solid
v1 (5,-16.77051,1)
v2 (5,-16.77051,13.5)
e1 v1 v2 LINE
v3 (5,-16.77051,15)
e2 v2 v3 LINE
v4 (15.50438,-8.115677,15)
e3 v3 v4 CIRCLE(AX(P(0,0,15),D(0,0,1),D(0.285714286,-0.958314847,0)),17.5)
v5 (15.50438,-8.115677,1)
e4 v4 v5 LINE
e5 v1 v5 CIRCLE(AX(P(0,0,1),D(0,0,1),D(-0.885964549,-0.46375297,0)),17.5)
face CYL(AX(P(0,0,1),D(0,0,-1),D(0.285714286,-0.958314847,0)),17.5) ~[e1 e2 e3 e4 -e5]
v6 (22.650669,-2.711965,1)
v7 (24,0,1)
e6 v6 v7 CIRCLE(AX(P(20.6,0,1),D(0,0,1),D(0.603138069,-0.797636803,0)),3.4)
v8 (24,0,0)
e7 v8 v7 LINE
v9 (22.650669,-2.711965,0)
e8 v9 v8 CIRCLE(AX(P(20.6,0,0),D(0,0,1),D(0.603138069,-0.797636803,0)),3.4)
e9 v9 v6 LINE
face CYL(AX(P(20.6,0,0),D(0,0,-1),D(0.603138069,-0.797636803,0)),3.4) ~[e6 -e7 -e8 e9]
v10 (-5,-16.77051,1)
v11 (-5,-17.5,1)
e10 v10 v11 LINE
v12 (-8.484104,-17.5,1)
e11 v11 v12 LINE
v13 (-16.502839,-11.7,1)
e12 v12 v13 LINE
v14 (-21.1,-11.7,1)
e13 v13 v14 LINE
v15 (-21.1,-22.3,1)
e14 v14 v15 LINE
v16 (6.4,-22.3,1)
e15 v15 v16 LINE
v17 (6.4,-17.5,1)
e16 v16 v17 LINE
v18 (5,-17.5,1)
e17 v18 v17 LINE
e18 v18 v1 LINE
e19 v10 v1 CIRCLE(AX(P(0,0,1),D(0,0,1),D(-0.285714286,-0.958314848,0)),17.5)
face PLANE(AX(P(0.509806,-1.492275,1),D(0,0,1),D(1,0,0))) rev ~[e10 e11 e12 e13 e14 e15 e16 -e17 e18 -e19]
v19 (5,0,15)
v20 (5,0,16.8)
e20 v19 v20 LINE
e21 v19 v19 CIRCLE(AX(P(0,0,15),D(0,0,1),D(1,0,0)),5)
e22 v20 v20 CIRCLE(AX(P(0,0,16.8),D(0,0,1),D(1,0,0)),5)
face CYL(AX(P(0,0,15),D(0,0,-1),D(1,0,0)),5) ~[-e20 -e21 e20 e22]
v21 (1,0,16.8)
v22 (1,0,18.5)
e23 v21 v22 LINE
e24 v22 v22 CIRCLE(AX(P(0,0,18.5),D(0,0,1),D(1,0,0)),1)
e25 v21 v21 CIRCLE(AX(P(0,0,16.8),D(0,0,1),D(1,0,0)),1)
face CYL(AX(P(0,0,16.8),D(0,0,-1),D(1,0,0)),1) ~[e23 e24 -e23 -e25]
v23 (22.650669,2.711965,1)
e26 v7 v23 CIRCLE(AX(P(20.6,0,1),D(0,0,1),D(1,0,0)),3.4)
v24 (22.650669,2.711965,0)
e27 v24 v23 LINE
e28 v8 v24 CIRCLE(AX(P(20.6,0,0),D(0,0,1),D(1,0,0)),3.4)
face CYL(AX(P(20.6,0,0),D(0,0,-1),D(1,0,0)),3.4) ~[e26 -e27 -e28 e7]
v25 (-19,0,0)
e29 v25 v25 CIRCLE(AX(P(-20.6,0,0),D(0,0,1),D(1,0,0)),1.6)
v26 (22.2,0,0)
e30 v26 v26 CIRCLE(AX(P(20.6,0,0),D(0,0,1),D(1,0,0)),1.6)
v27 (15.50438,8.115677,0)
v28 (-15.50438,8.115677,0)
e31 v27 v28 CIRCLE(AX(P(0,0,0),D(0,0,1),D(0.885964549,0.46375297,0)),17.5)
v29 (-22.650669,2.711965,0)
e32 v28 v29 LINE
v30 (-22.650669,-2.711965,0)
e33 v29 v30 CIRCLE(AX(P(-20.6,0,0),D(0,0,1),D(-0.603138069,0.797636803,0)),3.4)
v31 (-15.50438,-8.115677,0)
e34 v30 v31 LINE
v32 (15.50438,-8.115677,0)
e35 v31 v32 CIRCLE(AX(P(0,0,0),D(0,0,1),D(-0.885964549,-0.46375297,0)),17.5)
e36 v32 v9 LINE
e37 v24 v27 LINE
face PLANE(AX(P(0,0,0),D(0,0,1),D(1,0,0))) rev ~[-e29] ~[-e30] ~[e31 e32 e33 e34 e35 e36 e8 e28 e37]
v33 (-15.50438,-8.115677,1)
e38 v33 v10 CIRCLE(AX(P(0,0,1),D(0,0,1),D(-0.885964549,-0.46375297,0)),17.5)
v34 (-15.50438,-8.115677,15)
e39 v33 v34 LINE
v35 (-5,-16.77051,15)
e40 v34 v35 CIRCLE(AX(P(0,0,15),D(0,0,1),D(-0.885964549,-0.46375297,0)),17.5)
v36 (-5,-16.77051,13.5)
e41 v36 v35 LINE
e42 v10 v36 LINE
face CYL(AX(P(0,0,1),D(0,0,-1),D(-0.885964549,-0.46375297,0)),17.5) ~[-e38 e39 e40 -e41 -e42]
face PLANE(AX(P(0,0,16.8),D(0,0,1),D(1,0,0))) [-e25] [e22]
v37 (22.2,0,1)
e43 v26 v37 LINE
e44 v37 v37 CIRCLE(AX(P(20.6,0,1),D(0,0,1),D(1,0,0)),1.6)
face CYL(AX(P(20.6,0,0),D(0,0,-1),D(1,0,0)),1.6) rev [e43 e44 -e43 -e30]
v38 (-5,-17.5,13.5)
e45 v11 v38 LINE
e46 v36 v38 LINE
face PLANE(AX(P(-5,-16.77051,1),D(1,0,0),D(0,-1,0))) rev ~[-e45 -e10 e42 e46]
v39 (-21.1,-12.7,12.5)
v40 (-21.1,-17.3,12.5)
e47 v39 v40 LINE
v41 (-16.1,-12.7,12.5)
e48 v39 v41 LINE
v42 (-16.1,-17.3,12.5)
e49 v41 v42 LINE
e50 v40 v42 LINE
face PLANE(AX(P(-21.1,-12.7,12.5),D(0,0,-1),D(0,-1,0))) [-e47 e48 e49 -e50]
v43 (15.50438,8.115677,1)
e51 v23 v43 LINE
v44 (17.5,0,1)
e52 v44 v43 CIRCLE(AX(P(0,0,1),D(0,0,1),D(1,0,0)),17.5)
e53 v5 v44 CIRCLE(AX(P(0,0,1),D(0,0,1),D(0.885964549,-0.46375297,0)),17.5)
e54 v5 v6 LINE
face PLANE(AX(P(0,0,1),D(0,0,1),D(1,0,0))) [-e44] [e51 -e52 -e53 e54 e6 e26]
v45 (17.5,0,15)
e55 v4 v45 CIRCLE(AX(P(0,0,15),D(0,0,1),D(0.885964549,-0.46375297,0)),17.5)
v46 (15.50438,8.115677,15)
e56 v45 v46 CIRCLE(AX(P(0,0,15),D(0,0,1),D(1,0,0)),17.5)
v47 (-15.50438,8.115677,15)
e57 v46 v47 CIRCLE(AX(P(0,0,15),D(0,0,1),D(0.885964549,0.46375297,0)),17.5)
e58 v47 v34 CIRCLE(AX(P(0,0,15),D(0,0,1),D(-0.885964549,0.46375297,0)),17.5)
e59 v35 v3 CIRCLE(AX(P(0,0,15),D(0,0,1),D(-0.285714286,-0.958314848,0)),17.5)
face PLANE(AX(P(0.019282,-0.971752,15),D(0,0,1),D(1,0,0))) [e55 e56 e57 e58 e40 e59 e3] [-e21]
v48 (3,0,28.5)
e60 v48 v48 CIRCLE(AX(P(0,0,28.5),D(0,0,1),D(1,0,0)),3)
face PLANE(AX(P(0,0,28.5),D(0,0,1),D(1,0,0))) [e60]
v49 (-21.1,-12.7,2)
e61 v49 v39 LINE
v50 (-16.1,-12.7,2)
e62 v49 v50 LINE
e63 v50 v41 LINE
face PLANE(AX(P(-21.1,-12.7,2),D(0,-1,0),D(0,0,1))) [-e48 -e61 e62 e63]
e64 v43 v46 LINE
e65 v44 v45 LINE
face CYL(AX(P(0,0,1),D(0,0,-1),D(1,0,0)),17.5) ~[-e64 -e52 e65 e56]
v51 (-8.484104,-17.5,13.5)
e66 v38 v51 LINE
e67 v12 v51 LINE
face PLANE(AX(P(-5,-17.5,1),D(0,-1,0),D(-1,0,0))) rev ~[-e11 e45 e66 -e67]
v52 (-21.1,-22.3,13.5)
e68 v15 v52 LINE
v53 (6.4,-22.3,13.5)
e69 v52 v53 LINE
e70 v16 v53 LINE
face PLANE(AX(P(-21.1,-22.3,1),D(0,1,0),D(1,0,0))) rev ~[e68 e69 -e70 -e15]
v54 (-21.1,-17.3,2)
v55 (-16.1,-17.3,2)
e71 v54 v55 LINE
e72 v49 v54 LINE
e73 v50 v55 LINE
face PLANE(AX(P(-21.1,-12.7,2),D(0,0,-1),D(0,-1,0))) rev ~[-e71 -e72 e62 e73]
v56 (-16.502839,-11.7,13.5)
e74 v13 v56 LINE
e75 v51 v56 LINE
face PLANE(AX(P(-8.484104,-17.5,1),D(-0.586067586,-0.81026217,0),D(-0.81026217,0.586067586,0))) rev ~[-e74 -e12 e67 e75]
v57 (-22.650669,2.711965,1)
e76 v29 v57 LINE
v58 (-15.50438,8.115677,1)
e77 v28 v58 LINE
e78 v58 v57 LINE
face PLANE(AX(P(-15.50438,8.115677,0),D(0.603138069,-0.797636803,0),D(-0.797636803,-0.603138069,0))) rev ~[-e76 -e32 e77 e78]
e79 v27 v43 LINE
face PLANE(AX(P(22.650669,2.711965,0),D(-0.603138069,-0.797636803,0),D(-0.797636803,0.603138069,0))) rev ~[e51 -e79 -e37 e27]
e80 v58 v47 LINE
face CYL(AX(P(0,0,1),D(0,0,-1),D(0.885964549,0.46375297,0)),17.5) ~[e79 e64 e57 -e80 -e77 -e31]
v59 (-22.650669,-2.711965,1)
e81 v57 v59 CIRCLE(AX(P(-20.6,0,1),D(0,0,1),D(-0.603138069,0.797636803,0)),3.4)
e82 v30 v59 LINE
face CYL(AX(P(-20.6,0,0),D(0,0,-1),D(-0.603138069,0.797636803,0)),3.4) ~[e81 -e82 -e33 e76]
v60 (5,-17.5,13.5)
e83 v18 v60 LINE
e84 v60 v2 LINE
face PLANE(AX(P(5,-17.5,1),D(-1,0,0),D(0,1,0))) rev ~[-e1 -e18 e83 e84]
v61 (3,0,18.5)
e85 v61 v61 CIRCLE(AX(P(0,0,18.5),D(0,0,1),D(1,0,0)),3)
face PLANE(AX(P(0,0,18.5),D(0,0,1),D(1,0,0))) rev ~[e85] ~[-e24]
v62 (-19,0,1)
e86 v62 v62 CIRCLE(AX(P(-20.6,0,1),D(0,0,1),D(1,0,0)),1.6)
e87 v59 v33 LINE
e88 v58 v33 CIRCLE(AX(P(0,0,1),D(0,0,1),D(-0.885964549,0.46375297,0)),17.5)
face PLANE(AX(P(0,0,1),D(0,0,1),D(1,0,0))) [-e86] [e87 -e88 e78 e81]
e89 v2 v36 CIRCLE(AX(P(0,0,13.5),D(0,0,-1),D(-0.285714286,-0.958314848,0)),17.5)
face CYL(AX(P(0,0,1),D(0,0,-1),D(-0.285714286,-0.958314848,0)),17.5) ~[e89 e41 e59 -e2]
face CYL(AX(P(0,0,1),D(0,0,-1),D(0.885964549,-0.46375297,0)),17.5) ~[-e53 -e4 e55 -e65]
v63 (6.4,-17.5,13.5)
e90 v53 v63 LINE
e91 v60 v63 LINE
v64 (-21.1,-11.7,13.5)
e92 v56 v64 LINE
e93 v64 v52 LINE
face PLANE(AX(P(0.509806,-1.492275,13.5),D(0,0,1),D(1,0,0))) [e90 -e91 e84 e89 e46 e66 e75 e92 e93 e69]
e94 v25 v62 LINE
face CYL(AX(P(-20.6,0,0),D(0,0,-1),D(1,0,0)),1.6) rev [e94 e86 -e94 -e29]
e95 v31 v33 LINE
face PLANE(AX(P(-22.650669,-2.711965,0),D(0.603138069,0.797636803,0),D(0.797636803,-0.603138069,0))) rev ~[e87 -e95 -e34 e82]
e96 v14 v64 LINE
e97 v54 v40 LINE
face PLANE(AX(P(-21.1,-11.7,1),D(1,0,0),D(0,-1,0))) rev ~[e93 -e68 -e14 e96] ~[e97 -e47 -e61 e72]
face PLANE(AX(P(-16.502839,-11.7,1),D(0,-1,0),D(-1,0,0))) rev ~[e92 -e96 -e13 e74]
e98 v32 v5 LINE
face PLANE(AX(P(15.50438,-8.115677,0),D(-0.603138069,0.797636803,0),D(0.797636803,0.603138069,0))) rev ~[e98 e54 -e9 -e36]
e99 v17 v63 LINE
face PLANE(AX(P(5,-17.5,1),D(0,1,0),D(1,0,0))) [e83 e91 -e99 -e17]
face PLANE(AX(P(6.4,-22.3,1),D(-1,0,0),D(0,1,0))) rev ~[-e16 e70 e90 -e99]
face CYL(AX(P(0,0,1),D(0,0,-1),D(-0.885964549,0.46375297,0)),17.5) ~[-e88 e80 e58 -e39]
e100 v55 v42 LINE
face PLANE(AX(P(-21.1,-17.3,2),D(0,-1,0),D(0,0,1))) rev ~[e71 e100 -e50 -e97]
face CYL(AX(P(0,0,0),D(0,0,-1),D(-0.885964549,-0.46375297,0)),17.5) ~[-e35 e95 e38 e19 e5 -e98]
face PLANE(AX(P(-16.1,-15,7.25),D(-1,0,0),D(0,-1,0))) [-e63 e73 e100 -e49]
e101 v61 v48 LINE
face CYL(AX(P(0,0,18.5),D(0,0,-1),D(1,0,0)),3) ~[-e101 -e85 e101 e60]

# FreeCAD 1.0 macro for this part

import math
import FreeCAD as App
import Part
import Sketcher

V = App.Vector


def add_polygon(sketch, points):
    """Adds a closed chain of lines whose ends are joined by coincident constraints."""
    first, n = sketch.GeometryCount, len(points)
    for a, b in zip(points, points[1:] + points[:1]):
        sketch.addGeometry(Part.LineSegment(App.Vector(*a, 0), App.Vector(*b, 0)), False)
    for i in range(n):
        sketch.addConstraint(Sketcher.Constraint("Coincident", first + i, 2, first + (i + 1) % n, 1))

doc = App.newDocument("Part")
params = doc.addObject("Spreadsheet::Sheet", "Params")
for row, (alias, value) in enumerate([
    ("sketch1_diameter", "3.2 mm"),
    ("sketch1_radius", "3.4 mm"),
    ("sketch1_radius2", "17.5 mm"),
    ("pad1_length", "1 mm"),
    ("sketch2_radius", "17.5 mm"),
    ("pad2_length", "14 mm"),
    ("sketch3_radius", "17.5 mm"),
    ("sketch3_width", "27.5 mm"),
    ("sketch3_width2", "1.4 mm"),
    ("sketch3_height", "10.6 mm"),
    ("sketch3_height2", "4.8 mm"),
    ("pad3_length", "12.5 mm"),
    ("sketch4_diameter", "10 mm"),
    ("pad4_length", "1.8 mm"),
    ("sketch5_diameter", "2 mm"),
    ("pad5_length", "1.7 mm"),
    ("sketch6_diameter", "6 mm"),
    ("pad6_length", "10 mm"),
    ("sketch7_width", "4.6 mm"),
    ("sketch7_height", "10.5 mm"),
    ("pocket1_length", "5 mm"),
], start=1):
    params.set(f"A{row}", alias)
    params.set(f"B{row}", "=" + value)
    params.setAlias(f"B{row}", alias)

body = doc.addObject("PartDesign::Body", "Body")

# Sketch on XY plane
sketch1 = body.newObject("Sketcher::SketchObject", "Sketch")
sketch1.AttachmentSupport = (doc.getObject("XY_Plane"), [""])
sketch1.MapMode = "FlatFace"
sketch1.addGeometry([
    Part.ArcOfCircle(Part.Circle(V(-20.6, 0, 0), V(0, 0, 1), 3.4), math.radians(127.094977), math.radians(232.905023)),  # 0
    Part.LineSegment(V(-22.650669, -2.711965, 0), V(-15.50438, -8.115677, 0)),  # 1
    Part.ArcOfCircle(Part.Circle(V(0, 0, 0), V(0, 0, 1), 17.5), math.radians(-152.370454), math.radians(-27.629546)),  # 2
    Part.LineSegment(V(15.50438, -8.115677, 0), V(22.650669, -2.711965, 0)),  # 3
    Part.ArcOfCircle(Part.Circle(V(20.6, 0, 0), V(0, 0, 1), 3.4), math.radians(-52.905023), math.radians(0)),  # 4
    Part.ArcOfCircle(Part.Circle(V(20.6, 0, 0), V(0, 0, 1), 3.4), math.radians(0), math.radians(52.905023)),  # 5
    Part.LineSegment(V(22.650669, 2.711965, 0), V(15.50438, 8.115677, 0)),  # 6
    Part.ArcOfCircle(Part.Circle(V(0, 0, 0), V(0, 0, 1), 17.5), math.radians(27.629546), math.radians(152.370454)),  # 7
    Part.LineSegment(V(-15.50438, 8.115677, 0), V(-22.650669, 2.711965, 0)),  # 8
    Part.Circle(V(-20.6, 0, 0), V(0, 0, 1), 1.6),  # 9
    Part.Circle(V(20.6, 0, 0), V(0, 0, 1), 1.6),  # 10
], False)
sketch1.addConstraint([
    Sketcher.Constraint("Tangent", 0, 2, 1, 1),
    Sketcher.Constraint("Coincident", 1, 2, 2, 1),
    Sketcher.Constraint("Coincident", 2, 2, 3, 1),
    Sketcher.Constraint("Tangent", 3, 2, 4, 1),
    Sketcher.Constraint("Tangent", 4, 2, 5, 1),
    Sketcher.Constraint("Tangent", 5, 2, 6, 1),
    Sketcher.Constraint("Coincident", 6, 2, 7, 1),
    Sketcher.Constraint("Coincident", 7, 2, 8, 1),
    Sketcher.Constraint("Tangent", 8, 2, 0, 1),
    Sketcher.Constraint("Coincident", 2, 3, -1, 1),
    Sketcher.Constraint("Coincident", 7, 3, -1, 1),
    Sketcher.Constraint("Coincident", 9, 3, 0, 3),
    Sketcher.Constraint("Coincident", 10, 3, 4, 3),
    Sketcher.Constraint("Equal", 0, 4),
    Sketcher.Constraint("Equal", 4, 5),
    Sketcher.Constraint("Equal", 2, 7),
    Sketcher.Constraint("Equal", 9, 10),
    Sketcher.Constraint("Symmetric", 0, 3, 4, 3, -1, 1),
    Sketcher.Constraint("Symmetric", 0, 2, 3, 2, -2),
    Sketcher.Constraint("PointOnObject", 4, 2, -1),
    Sketcher.Constraint("Parallel", 1, 6),
    Sketcher.Constraint("Parallel", 3, 8),
    Sketcher.Constraint("Diameter", 9, 3.2),
    Sketcher.Constraint("Radius", 0, 3.4),
    Sketcher.Constraint("Radius", 2, 17.5),
    Sketcher.Constraint("DistanceX", -1, 1, 4, 2, 24.0),
    Sketcher.Constraint("Distance", 1, 8.959328),
])
sketch1.setExpression("Constraints[22]", "Params.sketch1_diameter")
sketch1.setExpression("Constraints[23]", "Params.sketch1_radius")
sketch1.setExpression("Constraints[24]", "Params.sketch1_radius2")
pad1 = body.newObject("PartDesign::Pad", "Pad")
pad1.Profile = sketch1
pad1.setExpression("Length", "Params.pad1_length")

# Sketch on XY plane
sketch2 = body.newObject("Sketcher::SketchObject", "Sketch001")
sketch2.AttachmentSupport = (doc.getObject("XY_Plane"), [""])
sketch2.MapMode = "FlatFace"
sketch2.AttachmentOffset = App.Placement(V(0, 0, 1), App.Rotation())
sketch2.addGeometry([
    Part.ArcOfCircle(Part.Circle(V(0, 0, 0), V(0, 0, 1), 17.5), math.radians(-27.629546), math.radians(0)),  # 0
    Part.ArcOfCircle(Part.Circle(V(0, 0, 0), V(0, 0, 1), 17.5), math.radians(0), math.radians(27.629546)),  # 1
    Part.ArcOfCircle(Part.Circle(V(0, 0, 0), V(0, 0, 1), 17.5), math.radians(27.629546), math.radians(152.370454)),  # 2
    Part.ArcOfCircle(Part.Circle(V(0, 0, 0), V(0, 0, 1), 17.5), math.radians(152.370454), math.radians(207.629546)),  # 3
    Part.ArcOfCircle(Part.Circle(V(0, 0, 0), V(0, 0, 1), 17.5), math.radians(-152.370454), math.radians(-106.60155)),  # 4
    Part.ArcOfCircle(Part.Circle(V(0, 0, 0), V(0, 0, 1), 17.5), math.radians(-106.60155), math.radians(-73.39845)),  # 5
    Part.ArcOfCircle(Part.Circle(V(0, 0, 0), V(0, 0, 1), 17.5), math.radians(-73.39845), math.radians(-27.629546)),  # 6
], False)
sketch2.addConstraint([
    Sketcher.Constraint("Tangent", 0, 2, 1, 1),
    Sketcher.Constraint("Tangent", 1, 2, 2, 1),
    Sketcher.Constraint("Tangent", 2, 2, 3, 1),
    Sketcher.Constraint("Tangent", 3, 2, 4, 1),
    Sketcher.Constraint("Tangent", 4, 2, 5, 1),
    Sketcher.Constraint("Tangent", 5, 2, 6, 1),
    Sketcher.Constraint("Tangent", 6, 2, 0, 1),
    Sketcher.Constraint("Coincident", 0, 3, -1, 1),
    Sketcher.Constraint("Coincident", 2, 3, -1, 1),
    Sketcher.Constraint("Coincident", 4, 3, -1, 1),
    Sketcher.Constraint("PointOnObject", 0, 2, -1),
    Sketcher.Constraint("Horizontal", 1, 2, 2, 2),
    Sketcher.Constraint("Horizontal", 4, 2, 5, 2),
    Sketcher.Constraint("Horizontal", 3, 2, 6, 2),
    Sketcher.Constraint("Vertical", 2, 2, 3, 2),
    Sketcher.Constraint("Radius", 0, 17.5),
    Sketcher.Constraint("DistanceX", 4, 2, -1, 1, 5.0),
    Sketcher.Constraint("DistanceX", -1, 1, 1, 2, 15.50438),
])
sketch2.setExpression("Constraints[15]", "Params.sketch2_radius")
pad2 = body.newObject("PartDesign::Pad", "Pad001")
pad2.Profile = sketch2
pad2.setExpression("Length", "Params.pad2_length")

# Sketch on XY plane
sketch3 = body.newObject("Sketcher::SketchObject", "Sketch002")
sketch3.AttachmentSupport = (doc.getObject("XY_Plane"), [""])
sketch3.MapMode = "FlatFace"
sketch3.AttachmentOffset = App.Placement(V(0, 0, 1), App.Rotation())
sketch3.addGeometry([
    Part.ArcOfCircle(Part.Circle(V(0, 0, 0), V(0, 0, 1), 17.5), math.radians(-73.39845), math.radians(0)),  # 0
    Part.ArcOfCircle(Part.Circle(V(0, 0, 0), V(0, 0, 1), 17.5), math.radians(0), math.radians(253.39845)),  # 1
    Part.LineSegment(V(-5, -16.77051, 0), V(-5, -17.5, 0)),  # 2
    Part.LineSegment(V(-5, -17.5, 0), V(-8.484104, -17.5, 0)),  # 3
    Part.LineSegment(V(-8.484104, -17.5, 0), V(-16.502839, -11.7, 0)),  # 4
    Part.LineSegment(V(-16.502839, -11.7, 0), V(-21.1, -11.7, 0)),  # 5
    Part.LineSegment(V(-21.1, -11.7, 0), V(-21.1, -22.3, 0)),  # 6
    Part.LineSegment(V(-21.1, -22.3, 0), V(6.4, -22.3, 0)),  # 7
    Part.LineSegment(V(6.4, -22.3, 0), V(6.4, -17.5, 0)),  # 8
    Part.LineSegment(V(6.4, -17.5, 0), V(5, -17.5, 0)),  # 9
    Part.LineSegment(V(5, -17.5, 0), V(5, -16.77051, 0)),  # 10
], False)
sketch3.addConstraint([
    Sketcher.Constraint("Tangent", 0, 2, 1, 1),
    Sketcher.Constraint("Coincident", 1, 2, 2, 1),
    Sketcher.Constraint("Coincident", 2, 2, 3, 1),
    Sketcher.Constraint("Coincident", 3, 2, 4, 1),
    Sketcher.Constraint("Coincident", 4, 2, 5, 1),
    Sketcher.Constraint("Coincident", 5, 2, 6, 1),
    Sketcher.Constraint("Coincident", 6, 2, 7, 1),
    Sketcher.Constraint("Coincident", 7, 2, 8, 1),
    Sketcher.Constraint("Coincident", 8, 2, 9, 1),
    Sketcher.Constraint("Coincident", 9, 2, 10, 1),
    Sketcher.Constraint("Coincident", 10, 2, 0, 1),
    Sketcher.Constraint("Vertical", 2),
    Sketcher.Constraint("Horizontal", 3),
    Sketcher.Constraint("Horizontal", 5),
    Sketcher.Constraint("Vertical", 6),
    Sketcher.Constraint("Horizontal", 7),
    Sketcher.Constraint("Vertical", 8),
    Sketcher.Constraint("Horizontal", 9),
    Sketcher.Constraint("Vertical", 10),
    Sketcher.Constraint("Coincident", 0, 3, -1, 1),
    Sketcher.Constraint("Equal", 0, 1),
    Sketcher.Constraint("Symmetric", 2, 2, 9, 2, -2),
    Sketcher.Constraint("PointOnObject", 0, 2, -1),
    Sketcher.Constraint("Radius", 0, 17.5),
    Sketcher.Constraint("DistanceX", 7, 1, 7, 2, 27.5),
    Sketcher.Constraint("DistanceX", 9, 2, 9, 1, 1.4),
    Sketcher.Constraint("DistanceY", 6, 2, 6, 1, 10.6),
    Sketcher.Constraint("DistanceY", 8, 1, 8, 2, 4.8),
    Sketcher.Constraint("DistanceX", 1, 2, -1, 1, 5.0),
    Sketcher.Constraint("DistanceY", 2, 2, -1, 1, 17.5),
    Sketcher.Constraint("DistanceX", 5, 2, 5, 1, 4.597161),
    Sketcher.Constraint("Distance", 4, 9.89647),
])
sketch3.setExpression("Constraints[23]", "Params.sketch3_radius")
sketch3.setExpression("Constraints[24]", "Params.sketch3_width")
sketch3.setExpression("Constraints[25]", "Params.sketch3_width2")
sketch3.setExpression("Constraints[26]", "Params.sketch3_height")
sketch3.setExpression("Constraints[27]", "Params.sketch3_height2")
pad3 = body.newObject("PartDesign::Pad", "Pad002")
pad3.Profile = sketch3
pad3.setExpression("Length", "Params.pad3_length")

# Sketch on XY plane
sketch4 = body.newObject("Sketcher::SketchObject", "Sketch003")
sketch4.AttachmentSupport = (doc.getObject("XY_Plane"), [""])
sketch4.MapMode = "FlatFace"
sketch4.AttachmentOffset = App.Placement(V(0, 0, 15), App.Rotation())
sketch4.addGeometry(Part.Circle(V(0, 0, 0), V(0, 0, 1), 5), False)
sketch4.addConstraint([
    Sketcher.Constraint("Coincident", 0, 3, -1, 1),
    Sketcher.Constraint("Diameter", 0, 10.0),
])
sketch4.setExpression("Constraints[1]", "Params.sketch4_diameter")
pad4 = body.newObject("PartDesign::Pad", "Pad003")
pad4.Profile = sketch4
pad4.setExpression("Length", "Params.pad4_length")

# Sketch on XY plane
sketch5 = body.newObject("Sketcher::SketchObject", "Sketch004")
sketch5.AttachmentSupport = (doc.getObject("XY_Plane"), [""])
sketch5.MapMode = "FlatFace"
sketch5.AttachmentOffset = App.Placement(V(0, 0, 16.8), App.Rotation())
sketch5.addGeometry(Part.Circle(V(0, 0, 0), V(0, 0, 1), 1), False)
sketch5.addConstraint([
    Sketcher.Constraint("Coincident", 0, 3, -1, 1),
    Sketcher.Constraint("Diameter", 0, 2.0),
])
sketch5.setExpression("Constraints[1]", "Params.sketch5_diameter")
pad5 = body.newObject("PartDesign::Pad", "Pad004")
pad5.Profile = sketch5
pad5.setExpression("Length", "Params.pad5_length")

# Sketch on XY plane
sketch6 = body.newObject("Sketcher::SketchObject", "Sketch005")
sketch6.AttachmentSupport = (doc.getObject("XY_Plane"), [""])
sketch6.MapMode = "FlatFace"
sketch6.AttachmentOffset = App.Placement(V(0, 0, 18.5), App.Rotation())
sketch6.addGeometry(Part.Circle(V(0, 0, 0), V(0, 0, 1), 3), False)
sketch6.addConstraint([
    Sketcher.Constraint("Coincident", 0, 3, -1, 1),
    Sketcher.Constraint("Diameter", 0, 6.0),
])
sketch6.setExpression("Constraints[1]", "Params.sketch6_diameter")
pad6 = body.newObject("PartDesign::Pad", "Pad005")
pad6.Profile = sketch6
pad6.setExpression("Length", "Params.pad6_length")

# Sketch on YZ plane
sketch7 = body.newObject("Sketcher::SketchObject", "Sketch006")
sketch7.AttachmentSupport = (doc.getObject("YZ_Plane"), [""])
sketch7.MapMode = "FlatFace"
sketch7.AttachmentOffset = App.Placement(V(0, 0, -21.1), App.Rotation())
add_polygon(sketch7, [(-12.7, 12.5), (-12.7, 2), (-17.3, 2), (-17.3, 12.5)])  # lines 0-3
sketch7.addConstraint([
    Sketcher.Constraint("Vertical", 0),
    Sketcher.Constraint("Horizontal", 1),
    Sketcher.Constraint("Vertical", 2),
    Sketcher.Constraint("Horizontal", 3),
    Sketcher.Constraint("DistanceX", 1, 2, 1, 1, 4.6),
    Sketcher.Constraint("DistanceY", 0, 2, 0, 1, 10.5),
    Sketcher.Constraint("DistanceY", -1, 1, 0, 2, 2.0),
    Sketcher.Constraint("DistanceX", 0, 2, -1, 1, 12.7),
])
sketch7.setExpression("Constraints[8]", "Params.sketch7_width")
sketch7.setExpression("Constraints[9]", "Params.sketch7_height")
pocket1 = body.newObject("PartDesign::Pocket", "Pocket")
pocket1.Profile = sketch7
pocket1.setExpression("Length", "Params.pocket1_length")
pocket1.Reversed = True

doc.recompute()
